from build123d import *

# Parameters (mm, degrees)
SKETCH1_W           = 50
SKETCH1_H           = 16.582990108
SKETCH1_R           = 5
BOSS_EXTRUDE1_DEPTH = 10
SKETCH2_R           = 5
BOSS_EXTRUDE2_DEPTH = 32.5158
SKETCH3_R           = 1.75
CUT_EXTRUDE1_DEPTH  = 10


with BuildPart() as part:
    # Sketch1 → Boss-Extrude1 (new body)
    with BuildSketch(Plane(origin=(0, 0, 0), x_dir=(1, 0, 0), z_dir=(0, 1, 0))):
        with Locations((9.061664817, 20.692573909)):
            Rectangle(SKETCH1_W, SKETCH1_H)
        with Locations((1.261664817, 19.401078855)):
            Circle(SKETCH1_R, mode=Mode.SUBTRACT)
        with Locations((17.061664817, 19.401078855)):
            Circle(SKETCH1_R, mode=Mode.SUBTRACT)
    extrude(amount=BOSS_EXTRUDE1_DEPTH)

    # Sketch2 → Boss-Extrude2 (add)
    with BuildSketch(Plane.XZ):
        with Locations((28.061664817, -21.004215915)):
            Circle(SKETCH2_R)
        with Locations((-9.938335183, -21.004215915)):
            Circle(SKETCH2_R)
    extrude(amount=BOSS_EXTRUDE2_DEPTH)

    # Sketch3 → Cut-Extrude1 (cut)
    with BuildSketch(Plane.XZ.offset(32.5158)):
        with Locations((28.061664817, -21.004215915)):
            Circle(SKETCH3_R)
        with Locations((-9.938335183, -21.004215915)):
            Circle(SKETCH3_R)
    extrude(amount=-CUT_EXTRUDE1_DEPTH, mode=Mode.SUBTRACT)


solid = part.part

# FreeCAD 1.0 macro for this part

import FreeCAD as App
import Part
import Sketcher

doc = App.newDocument("Part")
body = doc.addObject("PartDesign::Body", "Body")

# Sketch on XZ plane
sketch1 = body.newObject("Sketcher::SketchObject", "Sketch")
sketch1.AttachmentSupport = (doc.getObject("XZ_Plane"), [""])
sketch1.MapMode = "FlatFace"
sketch1.addGeometry([
    Part.LineSegment(App.Vector(-15.938335, -28.984069, 0), App.Vector(-15.938335, -12.401079, 0)),  # 0
    Part.LineSegment(App.Vector(-15.938335, -12.401079, 0), App.Vector(34.061665, -12.401079, 0)),  # 1
    Part.LineSegment(App.Vector(34.061665, -12.401079, 0), App.Vector(34.061665, -28.984069, 0)),  # 2
    Part.LineSegment(App.Vector(34.061665, -28.984069, 0), App.Vector(-15.938335, -28.984069, 0)),  # 3
    Part.Circle(App.Vector(1.261665, -19.401079, 0), App.Vector(0, 0, 1), 5),  # 4
    Part.Circle(App.Vector(17.061665, -19.401079, 0), App.Vector(0, 0, 1), 5),  # 5
], False)
sketch1.addConstraint([
    Sketcher.Constraint("Coincident", 0, 2, 1, 1),
    Sketcher.Constraint("Coincident", 1, 2, 2, 1),
    Sketcher.Constraint("Coincident", 2, 2, 3, 1),
    Sketcher.Constraint("Coincident", 3, 2, 0, 1),
    Sketcher.Constraint("Vertical", 0),
    Sketcher.Constraint("Horizontal", 1),
    Sketcher.Constraint("Vertical", 2),
    Sketcher.Constraint("Horizontal", 3),
    Sketcher.Constraint("Equal", 4, 5),
    Sketcher.Constraint("Horizontal", 4, 3, 5, 3),
    Sketcher.Constraint("Diameter", 4, 10.0),
    Sketcher.Constraint("DistanceX", 1, 1, 1, 2, 50.0),
    Sketcher.Constraint("DistanceY", 4, 3, 0, 2, 7.0),
    Sketcher.Constraint("DistanceX", 0, 2, 5, 3, 33.0),
    Sketcher.Constraint("DistanceX", 4, 3, 5, 3, 15.8),
    Sketcher.Constraint("DistanceY", 0, 1, 0, 2, 16.58299),
    Sketcher.Constraint("DistanceY", 4, 3, -1, 1, 19.401079),
    Sketcher.Constraint("DistanceX", -1, 1, 4, 3, 1.261665),
])
pad1 = body.newObject("PartDesign::Pad", "Pad")
pad1.Profile = sketch1
pad1.Length = 10
pad1.Reversed = True

# Sketch on XZ plane
sketch2 = body.newObject("Sketcher::SketchObject", "Sketch001")
sketch2.AttachmentSupport = (doc.getObject("XZ_Plane"), [""])
sketch2.MapMode = "FlatFace"
sketch2.addGeometry([
    Part.Circle(App.Vector(28.061665, -21.004216, 0), App.Vector(0, 0, 1), 5),
    Part.Circle(App.Vector(-9.938335, -21.004216, 0), App.Vector(0, 0, 1), 5),
], False)
sketch2.addConstraint([
    Sketcher.Constraint("Equal", 0, 1),
    Sketcher.Constraint("Horizontal", 0, 3, 1, 3),
    Sketcher.Constraint("Diameter", 0, 10.0),
    Sketcher.Constraint("DistanceX", 1, 3, 0, 3, 38.0),
    Sketcher.Constraint("DistanceX", -1, 1, 0, 3, 28.061665),
    Sketcher.Constraint("DistanceY", 0, 3, -1, 1, 21.004216),
])
pad2 = body.newObject("PartDesign::Pad", "Pad001")
pad2.Profile = sketch2
pad2.Length = 32.5158

# Sketch on XZ plane
sketch3 = body.newObject("Sketcher::SketchObject", "Sketch002")
sketch3.AttachmentSupport = (doc.getObject("XZ_Plane"), [""])
sketch3.MapMode = "FlatFace"
sketch3.AttachmentOffset = App.Placement(App.Vector(0, 0, 32.5158), App.Rotation())
sketch3.addGeometry([
    Part.Circle(App.Vector(28.061665, -21.004216, 0), App.Vector(0, 0, 1), 1.75),
    Part.Circle(App.Vector(-9.938335, -21.004216, 0), App.Vector(0, 0, 1), 1.75),
], False)
sketch3.addConstraint([
    Sketcher.Constraint("Equal", 0, 1),
    Sketcher.Constraint("Horizontal", 0, 3, 1, 3),
    Sketcher.Constraint("Diameter", 0, 3.5),
    Sketcher.Constraint("DistanceX", 1, 3, 0, 3, 38.0),
    Sketcher.Constraint("DistanceX", -1, 1, 0, 3, 28.061665),
    Sketcher.Constraint("DistanceY", 0, 3, -1, 1, 21.004216),
])
pocket1 = body.newObject("PartDesign::Pocket", "Pocket")
pocket1.Profile = sketch3
pocket1.Length = 10

doc.recompute()
